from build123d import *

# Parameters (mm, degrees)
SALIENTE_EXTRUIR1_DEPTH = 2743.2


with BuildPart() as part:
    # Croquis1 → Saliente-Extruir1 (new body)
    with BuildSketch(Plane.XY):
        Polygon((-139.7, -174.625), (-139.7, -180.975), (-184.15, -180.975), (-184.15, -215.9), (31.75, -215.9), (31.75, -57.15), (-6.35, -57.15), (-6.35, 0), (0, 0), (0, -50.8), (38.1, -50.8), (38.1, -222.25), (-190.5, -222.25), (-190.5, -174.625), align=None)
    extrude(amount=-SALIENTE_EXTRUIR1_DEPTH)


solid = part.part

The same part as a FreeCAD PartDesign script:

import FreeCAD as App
import Part
import Sketcher
from FreeCAD import Vector
Q = App.Units.Quantity

doc = App.newDocument("Part")
body = doc.addObject("PartDesign::Body", "Body")

# Sketch on XY plane
sketch1 = body.newObject("Sketcher::SketchObject", "Sketch")
sketch1.AttachmentSupport = (doc.getObject("XY_Plane"), [""])
sketch1.MapMode = "FlatFace"
sketch1.addGeometry(Part.LineSegment(Vector(-140, -181, 0), Vector(-140, -175, 0)), False)
sketch1.addGeometry(Part.LineSegment(Vector(-140, -175, 0), Vector(-190, -175, 0)), False)
sketch1.addGeometry(Part.LineSegment(Vector(-190, -175, 0), Vector(-190, -222, 0)), False)
sketch1.addGeometry(Part.LineSegment(Vector(-190, -222, 0), Vector(38, -222, 0)), False)
sketch1.addGeometry(Part.LineSegment(Vector(38, -222, 0), Vector(38, -51, 0)), False)
sketch1.addGeometry(Part.LineSegment(Vector(38, -51, 0), Vector(0, -51, 0)), False)
sketch1.addGeometry(Part.LineSegment(Vector(0, -51, 0), Vector(0, 0, 0)), False)
sketch1.addGeometry(Part.LineSegment(Vector(0, 0, 0), Vector(-6, 0, 0)), False)
sketch1.addGeometry(Part.LineSegment(Vector(-6, 0, 0), Vector(-6, -57, 0)), False)
sketch1.addGeometry(Part.LineSegment(Vector(-6, -57, 0), Vector(32, -57, 0)), False)
sketch1.addGeometry(Part.LineSegment(Vector(32, -57, 0), Vector(32, -216, 0)), False)
sketch1.addGeometry(Part.LineSegment(Vector(32, -216, 0), Vector(-184, -216, 0)), False)
sketch1.addGeometry(Part.LineSegment(Vector(-184, -216, 0), Vector(-184, -181, 0)), False)
sketch1.addGeometry(Part.LineSegment(Vector(-184, -181, 0), Vector(-140, -181, 0)), False)
sketch1.addConstraint(Sketcher.Constraint("Coincident", 0, 2, 1, 1))
sketch1.addConstraint(Sketcher.Constraint("Coincident", 1, 2, 2, 1))
sketch1.addConstraint(Sketcher.Constraint("Coincident", 2, 2, 3, 1))
sketch1.addConstraint(Sketcher.Constraint("Coincident", 3, 2, 4, 1))
sketch1.addConstraint(Sketcher.Constraint("Coincident", 4, 2, 5, 1))
sketch1.addConstraint(Sketcher.Constraint("Coincident", 5, 2, 6, 1))
sketch1.addConstraint(Sketcher.Constraint("Coincident", 6, 2, 7, 1))
sketch1.addConstraint(Sketcher.Constraint("Coincident", 7, 2, 8, 1))
sketch1.addConstraint(Sketcher.Constraint("Coincident", 8, 2, 9, 1))
sketch1.addConstraint(Sketcher.Constraint("Coincident", 9, 2, 10, 1))
sketch1.addConstraint(Sketcher.Constraint("Coincident", 10, 2, 11, 1))
sketch1.addConstraint(Sketcher.Constraint("Coincident", 11, 2, 12, 1))
sketch1.addConstraint(Sketcher.Constraint("Coincident", 12, 2, 13, 1))
sketch1.addConstraint(Sketcher.Constraint("Coincident", 13, 2, 0, 1))
sketch1.addConstraint(Sketcher.Constraint("Vertical", 0))
sketch1.addConstraint(Sketcher.Constraint("Horizontal", 1))
sketch1.addConstraint(Sketcher.Constraint("Vertical", 2))
sketch1.addConstraint(Sketcher.Constraint("Horizontal", 3))
sketch1.addConstraint(Sketcher.Constraint("Vertical", 4))
sketch1.addConstraint(Sketcher.Constraint("Horizontal", 5))
sketch1.addConstraint(Sketcher.Constraint("Vertical", 6))
sketch1.addConstraint(Sketcher.Constraint("Horizontal", 7))
sketch1.addConstraint(Sketcher.Constraint("Vertical", 8))
sketch1.addConstraint(Sketcher.Constraint("Horizontal", 9))
sketch1.addConstraint(Sketcher.Constraint("Vertical", 10))
sketch1.addConstraint(Sketcher.Constraint("Horizontal", 11))
sketch1.addConstraint(Sketcher.Constraint("Vertical", 12))
sketch1.addConstraint(Sketcher.Constraint("Horizontal", 13))
sketch1.addConstraint(Sketcher.Constraint("Coincident", 6, 2, -1, 1))
sketch1.addConstraint(Sketcher.Constraint("Equal", 5, 9))
sketch1.addConstraint(Sketcher.Constraint("Equal", 7, 0))
sketch1.addConstraint(Sketcher.Constraint("Equal", 1, 6))
sketch1.addConstraint(Sketcher.Constraint("DistanceX", 1, 2, 1, 1, Q("2 in")))
sketch1.addConstraint(Sketcher.Constraint("DistanceX", 3, 1, 3, 2, Q("9 in")))
sketch1.addConstraint(Sketcher.Constraint("DistanceX", 5, 2, 5, 1, Q("1.5 in")))
sketch1.addConstraint(Sketcher.Constraint("DistanceX", 11, 2, 11, 1, Q("8.5 in")))
sketch1.addConstraint(Sketcher.Constraint("DistanceX", 7, 2, 7, 1, Q("0.25 in")))
sketch1.addConstraint(Sketcher.Constraint("DistanceY", 4, 1, 4, 2, Q("6.75 in")))
sketch1.addConstraint(Sketcher.Constraint("DistanceY", 8, 2, 8, 1, Q("2.25 in")))
sketch1.addConstraint(Sketcher.Constraint("DistanceY", 10, 2, 10, 1, Q("6.25 in")))
sketch1.addConstraint(Sketcher.Constraint("DistanceY", 2, 2, 2, 1, Q("1.875 in")))
pad1 = body.newObject("PartDesign::Pad", "Pad")
pad1.Profile = sketch1
pad1.Length = Q("108 in")
pad1.Reversed = True

doc.recompute()
